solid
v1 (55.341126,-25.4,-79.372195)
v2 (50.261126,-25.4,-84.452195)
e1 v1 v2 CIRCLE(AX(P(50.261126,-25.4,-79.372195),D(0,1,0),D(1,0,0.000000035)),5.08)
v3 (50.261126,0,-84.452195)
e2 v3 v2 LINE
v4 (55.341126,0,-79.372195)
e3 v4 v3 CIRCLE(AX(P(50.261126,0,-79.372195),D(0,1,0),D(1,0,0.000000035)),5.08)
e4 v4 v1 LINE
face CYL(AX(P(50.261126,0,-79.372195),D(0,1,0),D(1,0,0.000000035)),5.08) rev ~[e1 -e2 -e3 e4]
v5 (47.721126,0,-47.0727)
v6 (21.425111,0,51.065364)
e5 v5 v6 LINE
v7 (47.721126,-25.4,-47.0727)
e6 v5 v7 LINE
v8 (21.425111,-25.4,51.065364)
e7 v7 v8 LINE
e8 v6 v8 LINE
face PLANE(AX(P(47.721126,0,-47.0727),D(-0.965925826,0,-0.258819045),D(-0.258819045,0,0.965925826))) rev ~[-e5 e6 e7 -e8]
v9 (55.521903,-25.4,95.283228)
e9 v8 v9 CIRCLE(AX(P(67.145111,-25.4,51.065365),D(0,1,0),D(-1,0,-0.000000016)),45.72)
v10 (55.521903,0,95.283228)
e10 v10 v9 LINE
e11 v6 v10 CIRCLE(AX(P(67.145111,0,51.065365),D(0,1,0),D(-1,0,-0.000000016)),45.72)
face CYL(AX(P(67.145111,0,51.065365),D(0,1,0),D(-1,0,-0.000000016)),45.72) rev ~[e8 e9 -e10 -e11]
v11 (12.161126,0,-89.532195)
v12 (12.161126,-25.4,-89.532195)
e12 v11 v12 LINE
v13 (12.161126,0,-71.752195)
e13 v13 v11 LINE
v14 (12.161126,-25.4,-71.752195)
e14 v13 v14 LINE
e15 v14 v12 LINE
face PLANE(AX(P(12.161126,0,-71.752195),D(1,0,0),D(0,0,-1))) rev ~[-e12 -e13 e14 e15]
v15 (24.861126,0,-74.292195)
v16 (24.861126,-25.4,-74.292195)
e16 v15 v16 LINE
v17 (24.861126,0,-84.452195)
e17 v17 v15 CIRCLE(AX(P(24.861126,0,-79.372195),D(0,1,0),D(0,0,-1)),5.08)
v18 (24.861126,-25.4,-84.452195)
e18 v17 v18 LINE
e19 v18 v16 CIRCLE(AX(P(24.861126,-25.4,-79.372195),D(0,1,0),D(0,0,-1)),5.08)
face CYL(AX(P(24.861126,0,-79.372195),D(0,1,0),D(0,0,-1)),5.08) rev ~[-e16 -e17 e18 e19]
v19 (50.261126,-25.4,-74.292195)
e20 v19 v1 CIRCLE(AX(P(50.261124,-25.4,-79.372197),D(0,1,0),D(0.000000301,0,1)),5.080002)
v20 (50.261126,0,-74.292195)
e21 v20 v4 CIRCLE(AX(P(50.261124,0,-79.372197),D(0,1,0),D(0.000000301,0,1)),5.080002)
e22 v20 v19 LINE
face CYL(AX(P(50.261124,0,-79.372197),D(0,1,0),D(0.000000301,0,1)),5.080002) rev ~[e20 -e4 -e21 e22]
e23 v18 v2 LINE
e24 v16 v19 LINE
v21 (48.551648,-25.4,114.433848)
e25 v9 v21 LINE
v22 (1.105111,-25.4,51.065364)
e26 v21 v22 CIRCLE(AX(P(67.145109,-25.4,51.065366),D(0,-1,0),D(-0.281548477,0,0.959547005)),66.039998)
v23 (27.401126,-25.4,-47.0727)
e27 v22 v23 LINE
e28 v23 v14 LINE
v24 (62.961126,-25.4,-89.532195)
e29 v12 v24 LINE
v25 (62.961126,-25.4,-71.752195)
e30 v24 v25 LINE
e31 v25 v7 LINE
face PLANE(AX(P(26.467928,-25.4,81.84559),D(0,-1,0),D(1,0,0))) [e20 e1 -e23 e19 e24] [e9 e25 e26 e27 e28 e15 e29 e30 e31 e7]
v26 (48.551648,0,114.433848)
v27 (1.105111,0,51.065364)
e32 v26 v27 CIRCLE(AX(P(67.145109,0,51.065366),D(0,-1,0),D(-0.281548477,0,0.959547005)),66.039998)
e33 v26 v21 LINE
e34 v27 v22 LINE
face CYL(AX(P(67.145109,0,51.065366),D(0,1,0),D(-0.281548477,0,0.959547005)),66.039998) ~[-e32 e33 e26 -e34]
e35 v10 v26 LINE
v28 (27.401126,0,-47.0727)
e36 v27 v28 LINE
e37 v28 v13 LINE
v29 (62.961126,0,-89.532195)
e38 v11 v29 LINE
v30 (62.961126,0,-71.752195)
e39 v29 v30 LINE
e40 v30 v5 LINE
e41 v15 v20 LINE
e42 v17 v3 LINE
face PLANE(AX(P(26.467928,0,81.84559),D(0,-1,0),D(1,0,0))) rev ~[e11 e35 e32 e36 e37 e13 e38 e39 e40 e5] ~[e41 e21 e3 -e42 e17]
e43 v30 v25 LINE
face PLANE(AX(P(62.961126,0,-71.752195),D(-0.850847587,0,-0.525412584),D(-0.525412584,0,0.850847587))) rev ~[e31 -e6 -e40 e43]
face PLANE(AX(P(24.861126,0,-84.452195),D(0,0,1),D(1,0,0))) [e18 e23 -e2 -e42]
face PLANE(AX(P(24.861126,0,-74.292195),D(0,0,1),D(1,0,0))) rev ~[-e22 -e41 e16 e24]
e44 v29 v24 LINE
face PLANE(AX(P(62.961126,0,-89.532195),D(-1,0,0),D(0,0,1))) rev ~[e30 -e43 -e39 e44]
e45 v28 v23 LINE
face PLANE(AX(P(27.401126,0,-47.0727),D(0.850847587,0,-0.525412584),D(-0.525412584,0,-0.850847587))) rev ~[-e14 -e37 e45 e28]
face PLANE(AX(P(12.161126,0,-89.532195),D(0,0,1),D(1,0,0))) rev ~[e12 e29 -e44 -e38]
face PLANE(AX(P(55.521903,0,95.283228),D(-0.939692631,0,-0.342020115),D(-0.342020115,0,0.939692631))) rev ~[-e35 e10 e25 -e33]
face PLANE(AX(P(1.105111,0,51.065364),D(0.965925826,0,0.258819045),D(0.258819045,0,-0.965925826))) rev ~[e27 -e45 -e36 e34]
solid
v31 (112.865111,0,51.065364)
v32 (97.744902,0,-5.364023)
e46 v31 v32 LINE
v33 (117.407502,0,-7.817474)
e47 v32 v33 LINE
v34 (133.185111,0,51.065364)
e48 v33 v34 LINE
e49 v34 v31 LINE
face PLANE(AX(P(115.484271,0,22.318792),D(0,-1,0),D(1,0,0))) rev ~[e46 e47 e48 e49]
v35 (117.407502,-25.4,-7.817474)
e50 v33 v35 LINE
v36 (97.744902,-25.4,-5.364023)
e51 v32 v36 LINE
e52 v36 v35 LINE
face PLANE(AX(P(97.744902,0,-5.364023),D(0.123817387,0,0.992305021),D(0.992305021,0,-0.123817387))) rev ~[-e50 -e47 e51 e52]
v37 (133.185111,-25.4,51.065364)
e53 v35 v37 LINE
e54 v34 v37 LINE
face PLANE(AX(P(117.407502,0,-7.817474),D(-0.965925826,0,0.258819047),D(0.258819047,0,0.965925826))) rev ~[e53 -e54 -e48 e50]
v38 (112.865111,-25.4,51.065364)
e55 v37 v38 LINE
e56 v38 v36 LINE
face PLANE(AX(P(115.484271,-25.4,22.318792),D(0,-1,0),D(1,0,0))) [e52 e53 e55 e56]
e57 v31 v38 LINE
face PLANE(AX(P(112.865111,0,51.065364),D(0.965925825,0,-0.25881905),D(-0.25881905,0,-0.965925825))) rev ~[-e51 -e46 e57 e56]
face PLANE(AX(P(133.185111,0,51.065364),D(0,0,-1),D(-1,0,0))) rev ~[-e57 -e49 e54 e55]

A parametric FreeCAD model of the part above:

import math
import FreeCAD as App
import Part
import Sketcher

V = App.Vector
Q = App.Units.Quantity


def add_polygon(sketch, points):
    """Adds a closed chain of lines whose ends are joined by coincident constraints."""
    first, n = sketch.GeometryCount, len(points)
    for a, b in zip(points, points[1:] + points[:1]):
        sketch.addGeometry(Part.LineSegment(App.Vector(*a, 0), App.Vector(*b, 0)), False)
    for i in range(n):
        sketch.addConstraint(Sketcher.Constraint("Coincident", first + i, 2, first + (i + 1) % n, 1))

doc = App.newDocument("Part")
body = doc.addObject("PartDesign::Body", "Body")
body.AllowCompound = True

sketch1 = body.newObject("Sketcher::SketchObject", "Sketch")
sketch1.AttachmentSupport = (doc.getObject("XZ_Plane"), [""])
sketch1.MapMode = "FlatFace"
sketch1.addGeometry(Part.ArcOfCircle(Part.Circle(V(67.145109, 51.065366, 0), V(0, 0, 1), 66.039998), math.radians(106.352644), math.radians(180.000002)), False)
sketch1.addGeometry(Part.LineSegment(V(1.105111, 51.065364, 0), V(27.401126, -47.0727, 0)), False)
sketch1.addGeometry(Part.LineSegment(V(27.401126, -47.0727, 0), V(12.161126, -71.752195, 0)), False)
sketch1.addGeometry(Part.LineSegment(V(12.161126, -71.752195, 0), V(12.161126, -89.532195, 0)), False)
sketch1.addGeometry(Part.LineSegment(V(12.161126, -89.532195, 0), V(62.961126, -89.532195, 0)), False)
sketch1.addGeometry(Part.LineSegment(V(62.961126, -89.532195, 0), V(62.961126, -71.752195, 0)), False)
sketch1.addGeometry(Part.LineSegment(V(62.961126, -71.752195, 0), V(47.721126, -47.0727, 0)), False)
sketch1.addGeometry(Part.LineSegment(V(47.721126, -47.0727, 0), V(21.425111, 51.065364, 0)), False)
sketch1.addGeometry(Part.ArcOfCircle(Part.Circle(V(67.145111, 51.065365, 0), V(0, 0, 1), 45.72), math.radians(104.727721), math.radians(180.000001)), False)
sketch1.addGeometry(Part.LineSegment(V(55.521903, 95.283228, 0), V(48.551648, 114.433848, 0)), False)
sketch1.addGeometry(Part.LineSegment(V(50.261126, -84.452195, 0), V(24.861126, -84.452195, 0)), False)
sketch1.addGeometry(Part.ArcOfCircle(Part.Circle(V(24.861126, -79.372195, 0), V(0, 0, 1), 5.08), math.radians(90), math.radians(270)), False)
sketch1.addGeometry(Part.LineSegment(V(24.861126, -74.292195, 0), V(50.261126, -74.292195, 0)), False)
sketch1.addGeometry(Part.ArcOfCircle(Part.Circle(V(50.261124, -79.372197, 0), V(0, 0, 1), 5.080002), math.radians(0.000017), math.radians(89.999983)), False)
sketch1.addGeometry(Part.ArcOfCircle(Part.Circle(V(50.261126, -79.372195, 0), V(0, 0, 1), 5.08), math.radians(-90.000002), math.radians(0.000002)), False)
add_polygon(sketch1, [(133.185111, 51.065364), (112.865111, 51.065364), (97.744902, -5.364023), (117.407502, -7.817474)])
sketch1.addConstraint(Sketcher.Constraint("Coincident", 0, 2, 1, 1))
sketch1.addConstraint(Sketcher.Constraint("Coincident", 1, 2, 2, 1))
sketch1.addConstraint(Sketcher.Constraint("Coincident", 2, 2, 3, 1))
sketch1.addConstraint(Sketcher.Constraint("Coincident", 3, 2, 4, 1))
sketch1.addConstraint(Sketcher.Constraint("Coincident", 4, 2, 5, 1))
sketch1.addConstraint(Sketcher.Constraint("Coincident", 5, 2, 6, 1))
sketch1.addConstraint(Sketcher.Constraint("Coincident", 6, 2, 7, 1))
sketch1.addConstraint(Sketcher.Constraint("Coincident", 7, 2, 8, 2))
sketch1.addConstraint(Sketcher.Constraint("Coincident", 8, 1, 9, 1))
sketch1.addConstraint(Sketcher.Constraint("Coincident", 9, 2, 0, 1))
sketch1.addConstraint(Sketcher.Constraint("Tangent", 10, 2, 11, 2))
sketch1.addConstraint(Sketcher.Constraint("Tangent", 11, 1, 12, 1))
sketch1.addConstraint(Sketcher.Constraint("Tangent", 12, 2, 13, 2))
sketch1.addConstraint(Sketcher.Constraint("Tangent", 13, 1, 14, 2))
sketch1.addConstraint(Sketcher.Constraint("Tangent", 14, 1, 10, 1))
sketch1.addConstraint(Sketcher.Constraint("Vertical", 3))
sketch1.addConstraint(Sketcher.Constraint("Horizontal", 4))
sketch1.addConstraint(Sketcher.Constraint("Vertical", 5))
sketch1.addConstraint(Sketcher.Constraint("Horizontal", 10))
sketch1.addConstraint(Sketcher.Constraint("Horizontal", 12))
sketch1.addConstraint(Sketcher.Constraint("Horizontal", 15))
sketch1.addConstraint(Sketcher.Constraint("Coincident", 8, 3, 0, 3))
sketch1.addConstraint(Sketcher.Constraint("Equal", 11, 13))
sketch1.addConstraint(Sketcher.Constraint("Parallel", 1, 7))
sketch1.addConstraint(Sketcher.Constraint("Parallel", 16, 18))
sketch1.addConstraint(Sketcher.Constraint("Horizontal", 8, 3, 0, 2))
sketch1.addConstraint(Sketcher.Constraint("Horizontal", 2, 2, 5, 2))
sketch1.addConstraint(Sketcher.Constraint("Horizontal", 1, 2, 6, 2))
sketch1.addConstraint(Sketcher.Constraint("Horizontal", 0, 2, 7, 2))
sketch1.addConstraint(Sketcher.Constraint("Horizontal", 14, 3, 13, 1))
sketch1.addConstraint(Sketcher.Constraint("Horizontal", 7, 2, 15, 2))
sketch1.addConstraint(Sketcher.Constraint("Equal", 2, 6))
sketch1.addConstraint(Sketcher.Constraint("Radius", 0, Q("2.5999999 in")))
sketch1.addConstraint(Sketcher.Constraint("Radius", 8, Q("1.8 in")))
sketch1.addConstraint(Sketcher.Constraint("Radius", 11, Q("0.2 in")))
sketch1.addConstraint(Sketcher.Constraint("DistanceX", 4, 1, 4, 2, Q("2 in")))
sketch1.addConstraint(Sketcher.Constraint("DistanceX", 10, 2, 10, 1, Q("1 in")))
sketch1.addConstraint(Sketcher.Constraint("Distance", 1, Q("4 in")))
sketch1.addConstraint(Sketcher.Constraint("DistanceX", 15, 2, 15, 1, Q("0.8 in")))
sketch1.addConstraint(Sketcher.Constraint("DistanceY", 3, 2, 3, 1, Q("0.7 in")))
sketch1.addConstraint(Sketcher.Constraint("Angle", 1, Q("-75 deg")))
sketch1.addConstraint(Sketcher.Constraint("Angle", 9, Q("109.999998 deg")))
sketch1.addConstraint(Sketcher.Constraint("Angle", 16, Q("-105 deg")))
sketch1.addConstraint(Sketcher.Constraint("Distance", 16, Q("2.3 in")))
sketch1.addConstraint(Sketcher.Constraint("Distance", 18, Q("2.4 in")))
sketch1.addConstraint(Sketcher.Constraint("DistanceX", 11, 3, 1, 2, Q("0.1 in")))
sketch1.addConstraint(Sketcher.Constraint("DistanceY", 11, 3, 2, 2, Q("0.3 in")))
sketch1.addConstraint(Sketcher.Constraint("DistanceX", 8, 3, 15, 2, Q("1.8 in")))
sketch1.addConstraint(Sketcher.Constraint("DistanceY", 1, 2, -1, 1, 47.0727))
sketch1.addConstraint(Sketcher.Constraint("DistanceX", -1, 1, 16, 2, 97.744902))
sketch1.addConstraint(Sketcher.Constraint("DistanceY", -1, 1, 8, 1, 95.283228))
sketch1.addConstraint(Sketcher.Constraint("DistanceY", 11, 3, 8, 3, 130.43756))
pad1 = body.newObject("PartDesign::Pad", "Pad")
pad1.Profile = sketch1
pad1.Length = Q("1 in")

doc.recompute()
